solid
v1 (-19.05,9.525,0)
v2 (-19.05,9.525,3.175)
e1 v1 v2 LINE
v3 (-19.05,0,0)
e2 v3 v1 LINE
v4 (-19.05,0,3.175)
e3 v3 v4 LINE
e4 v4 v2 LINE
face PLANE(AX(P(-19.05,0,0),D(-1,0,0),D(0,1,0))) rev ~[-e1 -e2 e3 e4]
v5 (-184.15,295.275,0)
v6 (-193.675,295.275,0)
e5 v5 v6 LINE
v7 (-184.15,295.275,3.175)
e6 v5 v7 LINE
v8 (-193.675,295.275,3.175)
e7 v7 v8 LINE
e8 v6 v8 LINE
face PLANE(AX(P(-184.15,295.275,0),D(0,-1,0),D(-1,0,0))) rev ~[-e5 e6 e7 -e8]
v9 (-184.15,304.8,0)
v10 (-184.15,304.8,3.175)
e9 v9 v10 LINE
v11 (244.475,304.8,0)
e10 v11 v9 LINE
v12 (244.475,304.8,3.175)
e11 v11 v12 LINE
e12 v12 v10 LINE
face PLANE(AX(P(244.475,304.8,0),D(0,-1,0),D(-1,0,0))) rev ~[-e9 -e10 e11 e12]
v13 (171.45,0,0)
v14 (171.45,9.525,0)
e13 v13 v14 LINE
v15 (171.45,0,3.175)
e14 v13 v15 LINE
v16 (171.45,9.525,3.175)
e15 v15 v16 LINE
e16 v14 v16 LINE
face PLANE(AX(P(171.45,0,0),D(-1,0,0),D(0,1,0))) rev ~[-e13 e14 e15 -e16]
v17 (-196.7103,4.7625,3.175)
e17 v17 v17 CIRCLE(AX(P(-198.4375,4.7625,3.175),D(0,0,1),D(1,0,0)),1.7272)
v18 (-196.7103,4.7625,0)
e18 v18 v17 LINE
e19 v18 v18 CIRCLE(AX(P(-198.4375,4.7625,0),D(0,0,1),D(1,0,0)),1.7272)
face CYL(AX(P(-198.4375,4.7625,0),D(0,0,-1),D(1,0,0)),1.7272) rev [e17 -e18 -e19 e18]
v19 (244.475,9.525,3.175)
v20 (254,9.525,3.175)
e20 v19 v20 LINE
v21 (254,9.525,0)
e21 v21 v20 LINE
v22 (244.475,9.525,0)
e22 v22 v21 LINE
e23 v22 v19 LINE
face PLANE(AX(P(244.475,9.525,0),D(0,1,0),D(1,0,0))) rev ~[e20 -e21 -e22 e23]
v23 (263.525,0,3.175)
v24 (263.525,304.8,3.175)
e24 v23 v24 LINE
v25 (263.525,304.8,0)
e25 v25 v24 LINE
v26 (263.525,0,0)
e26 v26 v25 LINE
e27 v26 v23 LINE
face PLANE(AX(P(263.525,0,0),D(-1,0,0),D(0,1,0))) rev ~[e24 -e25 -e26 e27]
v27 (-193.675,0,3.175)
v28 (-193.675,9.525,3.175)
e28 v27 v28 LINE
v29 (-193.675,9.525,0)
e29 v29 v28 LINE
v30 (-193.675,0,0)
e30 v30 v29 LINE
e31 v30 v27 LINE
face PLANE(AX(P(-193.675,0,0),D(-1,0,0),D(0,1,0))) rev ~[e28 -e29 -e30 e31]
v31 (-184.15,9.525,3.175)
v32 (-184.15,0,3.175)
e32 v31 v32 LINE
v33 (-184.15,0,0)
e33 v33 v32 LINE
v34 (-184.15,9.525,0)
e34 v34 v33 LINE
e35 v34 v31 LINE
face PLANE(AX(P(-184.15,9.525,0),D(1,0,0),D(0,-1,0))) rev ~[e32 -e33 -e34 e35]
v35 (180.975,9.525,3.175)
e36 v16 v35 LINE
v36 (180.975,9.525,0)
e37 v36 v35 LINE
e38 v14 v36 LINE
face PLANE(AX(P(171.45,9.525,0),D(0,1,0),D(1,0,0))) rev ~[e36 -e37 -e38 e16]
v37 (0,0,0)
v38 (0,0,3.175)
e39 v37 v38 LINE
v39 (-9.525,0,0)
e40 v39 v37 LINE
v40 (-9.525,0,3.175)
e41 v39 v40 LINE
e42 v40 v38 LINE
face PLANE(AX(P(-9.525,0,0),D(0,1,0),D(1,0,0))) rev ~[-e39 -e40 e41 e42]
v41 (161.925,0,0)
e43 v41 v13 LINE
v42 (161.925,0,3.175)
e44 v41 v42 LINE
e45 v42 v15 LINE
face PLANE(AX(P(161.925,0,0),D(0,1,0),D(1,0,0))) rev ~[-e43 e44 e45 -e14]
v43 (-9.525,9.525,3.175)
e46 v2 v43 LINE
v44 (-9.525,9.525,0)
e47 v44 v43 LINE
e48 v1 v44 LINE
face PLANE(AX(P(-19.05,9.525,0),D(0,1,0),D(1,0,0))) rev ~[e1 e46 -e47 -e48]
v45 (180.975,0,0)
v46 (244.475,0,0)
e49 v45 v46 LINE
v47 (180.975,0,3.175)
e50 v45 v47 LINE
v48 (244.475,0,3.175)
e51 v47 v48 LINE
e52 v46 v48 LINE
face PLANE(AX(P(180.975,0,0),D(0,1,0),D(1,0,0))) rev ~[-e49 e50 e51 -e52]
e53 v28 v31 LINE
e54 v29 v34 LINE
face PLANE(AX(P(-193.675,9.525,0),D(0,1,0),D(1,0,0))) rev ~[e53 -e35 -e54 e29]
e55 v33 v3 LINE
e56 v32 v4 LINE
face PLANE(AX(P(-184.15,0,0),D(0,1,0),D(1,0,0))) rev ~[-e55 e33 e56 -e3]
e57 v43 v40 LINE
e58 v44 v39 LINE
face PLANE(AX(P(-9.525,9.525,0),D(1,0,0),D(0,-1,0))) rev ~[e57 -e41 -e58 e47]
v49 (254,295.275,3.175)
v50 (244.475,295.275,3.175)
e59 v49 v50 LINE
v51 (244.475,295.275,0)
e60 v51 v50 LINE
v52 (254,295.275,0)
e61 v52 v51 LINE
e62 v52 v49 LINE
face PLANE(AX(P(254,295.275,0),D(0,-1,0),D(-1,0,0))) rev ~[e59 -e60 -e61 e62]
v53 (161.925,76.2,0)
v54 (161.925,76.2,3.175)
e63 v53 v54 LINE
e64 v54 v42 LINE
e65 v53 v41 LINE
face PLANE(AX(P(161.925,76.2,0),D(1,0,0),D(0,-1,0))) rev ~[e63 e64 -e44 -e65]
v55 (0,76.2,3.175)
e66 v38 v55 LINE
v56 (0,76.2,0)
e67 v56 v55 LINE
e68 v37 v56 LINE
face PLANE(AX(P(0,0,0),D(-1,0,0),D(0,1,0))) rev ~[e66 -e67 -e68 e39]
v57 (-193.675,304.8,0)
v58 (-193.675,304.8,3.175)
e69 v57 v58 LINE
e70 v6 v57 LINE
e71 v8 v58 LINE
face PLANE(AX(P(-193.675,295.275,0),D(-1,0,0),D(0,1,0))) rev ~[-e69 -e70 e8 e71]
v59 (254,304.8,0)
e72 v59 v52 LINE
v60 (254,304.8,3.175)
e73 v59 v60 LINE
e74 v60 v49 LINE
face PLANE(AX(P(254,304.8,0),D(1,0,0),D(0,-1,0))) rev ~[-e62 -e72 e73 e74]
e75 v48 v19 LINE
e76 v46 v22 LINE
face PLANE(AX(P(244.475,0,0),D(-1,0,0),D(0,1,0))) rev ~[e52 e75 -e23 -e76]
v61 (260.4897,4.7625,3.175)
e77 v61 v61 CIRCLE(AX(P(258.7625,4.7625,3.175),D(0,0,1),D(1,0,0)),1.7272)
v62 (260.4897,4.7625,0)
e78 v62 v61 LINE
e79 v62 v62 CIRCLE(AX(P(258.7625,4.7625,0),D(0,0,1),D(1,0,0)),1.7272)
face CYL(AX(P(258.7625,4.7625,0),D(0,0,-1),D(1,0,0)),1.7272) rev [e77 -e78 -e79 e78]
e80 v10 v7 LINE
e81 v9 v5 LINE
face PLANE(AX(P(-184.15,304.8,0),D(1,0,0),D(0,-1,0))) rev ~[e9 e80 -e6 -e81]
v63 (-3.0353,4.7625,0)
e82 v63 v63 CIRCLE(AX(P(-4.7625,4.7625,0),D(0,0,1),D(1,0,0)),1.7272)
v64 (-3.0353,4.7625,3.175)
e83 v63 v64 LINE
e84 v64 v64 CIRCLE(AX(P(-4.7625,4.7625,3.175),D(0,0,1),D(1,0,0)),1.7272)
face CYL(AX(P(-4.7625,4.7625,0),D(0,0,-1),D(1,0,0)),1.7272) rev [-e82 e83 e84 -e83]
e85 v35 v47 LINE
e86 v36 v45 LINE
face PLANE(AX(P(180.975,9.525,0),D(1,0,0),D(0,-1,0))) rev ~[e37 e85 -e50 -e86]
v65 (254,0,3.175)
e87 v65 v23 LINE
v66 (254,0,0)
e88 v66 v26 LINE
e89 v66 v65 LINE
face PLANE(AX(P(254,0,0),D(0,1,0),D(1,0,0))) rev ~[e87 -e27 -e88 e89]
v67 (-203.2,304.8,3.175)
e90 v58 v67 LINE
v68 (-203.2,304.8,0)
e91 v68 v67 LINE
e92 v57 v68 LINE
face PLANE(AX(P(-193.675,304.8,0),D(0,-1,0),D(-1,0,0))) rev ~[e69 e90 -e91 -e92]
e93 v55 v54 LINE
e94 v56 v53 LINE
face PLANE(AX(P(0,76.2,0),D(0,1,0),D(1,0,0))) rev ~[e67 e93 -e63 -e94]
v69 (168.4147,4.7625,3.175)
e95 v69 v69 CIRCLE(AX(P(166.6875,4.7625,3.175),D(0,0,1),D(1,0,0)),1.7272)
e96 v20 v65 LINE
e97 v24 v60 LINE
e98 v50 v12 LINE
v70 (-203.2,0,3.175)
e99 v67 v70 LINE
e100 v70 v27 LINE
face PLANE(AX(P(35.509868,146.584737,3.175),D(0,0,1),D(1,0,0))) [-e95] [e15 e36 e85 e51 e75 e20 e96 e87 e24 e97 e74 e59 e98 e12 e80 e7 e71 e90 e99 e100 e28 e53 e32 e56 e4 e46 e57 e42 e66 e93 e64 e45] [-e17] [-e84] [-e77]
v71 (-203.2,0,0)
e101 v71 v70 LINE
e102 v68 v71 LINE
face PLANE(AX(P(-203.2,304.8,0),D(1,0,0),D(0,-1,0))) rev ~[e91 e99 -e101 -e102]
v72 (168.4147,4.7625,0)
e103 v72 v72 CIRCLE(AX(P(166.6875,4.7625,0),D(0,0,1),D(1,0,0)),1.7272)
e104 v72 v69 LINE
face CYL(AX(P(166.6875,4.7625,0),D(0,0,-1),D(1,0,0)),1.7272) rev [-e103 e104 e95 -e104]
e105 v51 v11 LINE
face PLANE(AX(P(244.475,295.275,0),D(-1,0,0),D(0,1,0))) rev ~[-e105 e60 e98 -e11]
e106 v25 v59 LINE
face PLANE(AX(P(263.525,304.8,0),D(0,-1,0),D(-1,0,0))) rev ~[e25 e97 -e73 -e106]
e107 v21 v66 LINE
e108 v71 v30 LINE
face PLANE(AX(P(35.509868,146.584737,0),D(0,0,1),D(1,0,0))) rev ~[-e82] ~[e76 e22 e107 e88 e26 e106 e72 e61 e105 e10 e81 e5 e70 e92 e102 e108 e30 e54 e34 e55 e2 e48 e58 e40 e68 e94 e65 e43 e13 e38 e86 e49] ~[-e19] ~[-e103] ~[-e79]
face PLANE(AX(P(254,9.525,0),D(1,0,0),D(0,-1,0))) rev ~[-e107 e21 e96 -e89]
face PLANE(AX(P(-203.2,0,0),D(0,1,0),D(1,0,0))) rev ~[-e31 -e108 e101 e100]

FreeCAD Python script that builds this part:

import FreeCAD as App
import Part
import Sketcher

V = App.Vector
Q = App.Units.Quantity


def add_polygon(sketch, points):
    """Adds a closed chain of lines whose ends are joined by coincident constraints."""
    first, n = sketch.GeometryCount, len(points)
    for a, b in zip(points, points[1:] + points[:1]):
        sketch.addGeometry(Part.LineSegment(App.Vector(*a, 0), App.Vector(*b, 0)), False)
    for i in range(n):
        sketch.addConstraint(Sketcher.Constraint("Coincident", first + i, 2, first + (i + 1) % n, 1))

doc = App.newDocument("Part")
params = doc.addObject("Spreadsheet::Sheet", "Params")
for row, (alias, value) in enumerate([
    ("sketch1_height", "3 in"),
    ("sketch1_height2", "12 in"),
    ("sketch1_diameter", "0.136 in"),
    ("sketch1_width", "2.5 in"),
    ("sketch1_width2", "6.5 in"),
    ("pad1_length", "0.125 in"),
], start=1):
    params.set(f"A{row}", alias)
    params.set(f"B{row}", "=" + value)
    params.setAlias(f"B{row}", alias)

body = doc.addObject("PartDesign::Body", "Body")

sketch1 = body.newObject("Sketcher::SketchObject", "Sketch")
sketch1.AttachmentSupport = (doc.getObject("XY_Plane"), [""])
sketch1.MapMode = "FlatFace"
add_polygon(sketch1, [(0, 0), (0, 76.2), (161.9, 76.2), (161.9, 0), (171.4, 0), (171.4, 9.5), (181, 9.5), (181, 0), (244.5, 0), (244.5, 9.5), (254, 9.5), (254, 0), (263.5, 0), (263.5, 304.8), (254, 304.8), (254, 295.3), (244.5, 295.3), (244.5, 304.8), (-184.2, 304.8), (-184.2, 295.3), (-193.7, 295.3), (-193.7, 304.8), (-203.2, 304.8), (-203.2, 0), (-193.7, 0), (-193.7, 9.5), (-184.2, 9.5), (-184.2, 0), (-19.1, 0), (-19.1, 9.5), (-9.5, 9.5), (-9.5, 0)])
sketch1.addGeometry(Part.Circle(V(-198.4, 4.8, 0), V(0, 0, 1), 1.7), False)
sketch1.addGeometry(Part.Circle(V(-4.8, 4.8, 0), V(0, 0, 1), 1.7), False)
sketch1.addGeometry(Part.Circle(V(166.7, 4.8, 0), V(0, 0, 1), 1.7), False)
sketch1.addGeometry(Part.Circle(V(258.8, 4.8, 0), V(0, 0, 1), 1.7), False)
sketch1.addConstraint([
    Sketcher.Constraint("Vertical", 0),
    Sketcher.Constraint("Horizontal", 1),
    Sketcher.Constraint("Vertical", 2),
    Sketcher.Constraint("Horizontal", 3),
    Sketcher.Constraint("Vertical", 4),
    Sketcher.Constraint("Horizontal", 5),
    Sketcher.Constraint("Vertical", 6),
    Sketcher.Constraint("Horizontal", 7),
    Sketcher.Constraint("Vertical", 8),
    Sketcher.Constraint("Horizontal", 9),
    Sketcher.Constraint("Vertical", 10),
    Sketcher.Constraint("Horizontal", 11),
    Sketcher.Constraint("Vertical", 12),
    Sketcher.Constraint("Horizontal", 13),
    Sketcher.Constraint("Vertical", 14),
    Sketcher.Constraint("Horizontal", 15),
    Sketcher.Constraint("Vertical", 16),
    Sketcher.Constraint("Horizontal", 17),
    Sketcher.Constraint("Vertical", 18),
    Sketcher.Constraint("Horizontal", 19),
    Sketcher.Constraint("Vertical", 20),
    Sketcher.Constraint("Horizontal", 21),
    Sketcher.Constraint("Vertical", 22),
    Sketcher.Constraint("Horizontal", 23),
    Sketcher.Constraint("Vertical", 24),
    Sketcher.Constraint("Horizontal", 25),
    Sketcher.Constraint("Vertical", 26),
    Sketcher.Constraint("Horizontal", 27),
    Sketcher.Constraint("Vertical", 28),
    Sketcher.Constraint("Horizontal", 29),
    Sketcher.Constraint("Vertical", 30),
    Sketcher.Constraint("Horizontal", 31),
    Sketcher.Constraint("Coincident", 31, 2, -1, 1),
    Sketcher.Constraint("Equal", 32, 33),
    Sketcher.Constraint("Equal", 33, 34),
    Sketcher.Constraint("Equal", 34, 35),
    Sketcher.Constraint("PointOnObject", 2, 2, -1),
    Sketcher.Constraint("PointOnObject", 6, 2, -1),
    Sketcher.Constraint("PointOnObject", 10, 2, -1),
    Sketcher.Constraint("PointOnObject", 22, 2, -1),
    Sketcher.Constraint("PointOnObject", 26, 2, -1),
    Sketcher.Constraint("Horizontal", 32, 3, 33, 3),
    Sketcher.Constraint("Horizontal", 33, 3, 34, 3),
    Sketcher.Constraint("Horizontal", 34, 3, 35, 3),
    Sketcher.Constraint("Horizontal", 5, 2, 8, 2),
    Sketcher.Constraint("Horizontal", 13, 2, 16, 2),
    Sketcher.Constraint("Horizontal", 15, 2, 18, 2),
    Sketcher.Constraint("Horizontal", 17, 2, 20, 2),
    Sketcher.Constraint("Horizontal", 9, 2, 24, 2),
    Sketcher.Constraint("Horizontal", 25, 2, 28, 2),
    Sketcher.Constraint("Vertical", 10, 2, 13, 2),
    Sketcher.Constraint("Vertical", 8, 2, 15, 2),
    Sketcher.Constraint("Vertical", 20, 2, 23, 2),
    Sketcher.Constraint("Vertical", 18, 2, 25, 2),
    Sketcher.Constraint("Equal", 3, 5),
    Sketcher.Constraint("Equal", 5, 9),
    Sketcher.Constraint("Equal", 9, 11),
    Sketcher.Constraint("Equal", 15, 19),
    Sketcher.Constraint("Equal", 19, 21),
    Sketcher.Constraint("Equal", 25, 29),
    Sketcher.Constraint("Equal", 29, 31),
    Sketcher.Constraint("Equal", 31, 4),
    Sketcher.Constraint("Equal", 10, 14),
    Sketcher.Constraint("DistanceY", 0, 1, 0, 2, Q("3 in")),
    Sketcher.Constraint("DistanceY", 12, 1, 12, 2, Q("12 in")),
    Sketcher.Constraint("Diameter", 32, Q("0.136 in")),
    Sketcher.Constraint("DistanceX", 7, 1, 7, 2, Q("2.5 in")),
    Sketcher.Constraint("DistanceX", 27, 1, 27, 2, Q("6.5 in")),
    Sketcher.Constraint("DistanceX", -1, 1, 9, 2, Q("10 in")),
    Sketcher.Constraint("DistanceX", 21, 2, -1, 1, Q("8 in")),
    Sketcher.Constraint("DistanceX", 32, 3, 35, 3, Q("18 in")),
    Sketcher.Constraint("DistanceX", 33, 3, 34, 3, Q("6.75 in")),
    Sketcher.Constraint("DistanceX", 32, 3, -1, 1, Q("7.8125 in")),
    Sketcher.Constraint("DistanceY", -1, 1, 32, 3, Q("0.1875 in")),
    Sketcher.Constraint("DistanceX", 33, 3, -1, 1, Q("0.1875 in")),
])
sketch1.setExpression("Constraints[95]", "Params.sketch1_height")
sketch1.setExpression("Constraints[96]", "Params.sketch1_height2")
sketch1.setExpression("Constraints[97]", "Params.sketch1_diameter")
sketch1.setExpression("Constraints[98]", "Params.sketch1_width")
sketch1.setExpression("Constraints[99]", "Params.sketch1_width2")
pad1 = body.newObject("PartDesign::Pad", "Pad")
pad1.Profile = sketch1
pad1.setExpression("Length", "Params.pad1_length")

doc.recompute()
